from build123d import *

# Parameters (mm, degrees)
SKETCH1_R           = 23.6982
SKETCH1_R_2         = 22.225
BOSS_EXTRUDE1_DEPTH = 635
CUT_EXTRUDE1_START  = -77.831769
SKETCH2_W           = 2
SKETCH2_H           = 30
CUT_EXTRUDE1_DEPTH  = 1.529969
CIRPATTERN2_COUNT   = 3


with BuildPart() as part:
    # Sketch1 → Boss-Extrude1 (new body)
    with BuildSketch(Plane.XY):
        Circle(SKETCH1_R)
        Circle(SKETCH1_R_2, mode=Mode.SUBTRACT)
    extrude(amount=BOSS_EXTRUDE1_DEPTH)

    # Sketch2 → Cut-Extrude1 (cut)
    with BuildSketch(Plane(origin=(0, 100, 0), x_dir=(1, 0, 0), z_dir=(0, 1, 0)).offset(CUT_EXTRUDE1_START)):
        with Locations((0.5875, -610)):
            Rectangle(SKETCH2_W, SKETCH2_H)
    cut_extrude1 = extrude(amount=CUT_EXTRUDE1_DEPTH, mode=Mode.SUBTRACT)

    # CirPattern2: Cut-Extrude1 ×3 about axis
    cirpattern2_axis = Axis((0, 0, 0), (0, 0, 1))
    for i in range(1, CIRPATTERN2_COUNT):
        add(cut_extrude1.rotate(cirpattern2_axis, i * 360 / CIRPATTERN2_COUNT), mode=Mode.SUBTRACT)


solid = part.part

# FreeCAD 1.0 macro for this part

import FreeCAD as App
import Part
import Sketcher

V = App.Vector
Q = App.Units.Quantity

doc = App.newDocument("Part")
body = doc.addObject("PartDesign::Body", "Body")

# Sketch on XY plane
sketch1 = body.newObject("Sketcher::SketchObject", "Sketch")
sketch1.AttachmentSupport = (doc.getObject("XY_Plane"), [""])
sketch1.MapMode = "FlatFace"
sketch1.addGeometry(Part.Circle(V(0, 0, 0), V(0, 0, 1), 23.6982), False)
sketch1.addGeometry(Part.Circle(V(0, 0, 0), V(0, 0, 1), 22.225), False)
sketch1.addConstraint(Sketcher.Constraint("Coincident", 0, 3, -1, 1))
sketch1.addConstraint(Sketcher.Constraint("Coincident", 1, 3, -1, 1))
sketch1.addConstraint(Sketcher.Constraint("Diameter", 1, Q("1.75 in")))
sketch1.addConstraint(Sketcher.Constraint("Diameter", 0, Q("1.866 in")))
pad1 = body.newObject("PartDesign::Pad", "Pad")
pad1.Profile = sketch1
pad1.Length = Q("25 in")

# Sketch on XZ plane
sketch2 = body.newObject("Sketcher::SketchObject", "Sketch001")
sketch2.AttachmentSupport = (doc.getObject("XZ_Plane"), [""])
sketch2.MapMode = "FlatFace"
sketch2.AttachmentOffset = App.Placement(V(0, 0, -22.168231), App.Rotation())
sketch2.addGeometry(Part.LineSegment(V(-0.4125, 595, 0), V(-0.4125, 625, 0)), False)
sketch2.addGeometry(Part.LineSegment(V(-0.4125, 625, 0), V(1.5875, 625, 0)), False)
sketch2.addGeometry(Part.LineSegment(V(1.5875, 625, 0), V(1.5875, 595, 0)), False)
sketch2.addGeometry(Part.LineSegment(V(1.5875, 595, 0), V(-0.4125, 595, 0)), False)
sketch2.addConstraint(Sketcher.Constraint("Coincident", 0, 2, 1, 1))
sketch2.addConstraint(Sketcher.Constraint("Coincident", 1, 2, 2, 1))
sketch2.addConstraint(Sketcher.Constraint("Coincident", 2, 2, 3, 1))
sketch2.addConstraint(Sketcher.Constraint("Coincident", 3, 2, 0, 1))
sketch2.addConstraint(Sketcher.Constraint("Vertical", 0))
sketch2.addConstraint(Sketcher.Constraint("Horizontal", 1))
sketch2.addConstraint(Sketcher.Constraint("Vertical", 2))
sketch2.addConstraint(Sketcher.Constraint("Horizontal", 3))
sketch2.addConstraint(Sketcher.Constraint("DistanceX", -1, 1, 1, 2, Q("0.0625 in")))
sketch2.addConstraint(Sketcher.Constraint("DistanceX", 1, 1, 1, 2, 2.0))
sketch2.addConstraint(Sketcher.Constraint("DistanceY", 0, 1, 0, 2, 30.0))
sketch2.addConstraint(Sketcher.Constraint("DistanceY", -1, 1, 0, 2, 625.0))
pocket1 = body.newObject("PartDesign::Pocket", "Pocket")
pocket1.Profile = sketch2
pocket1.Length = 1.529969
doc.recompute()

polarpattern = body.newObject("PartDesign::PolarPattern", "PolarPattern")
polarpattern.Originals = [pocket1]
polarpattern.Axis = (doc.getObject("Z_Axis"), [""])
polarpattern.Angle = 360
polarpattern.Occurrences = 3
body.Tip = polarpattern

doc.recompute()
